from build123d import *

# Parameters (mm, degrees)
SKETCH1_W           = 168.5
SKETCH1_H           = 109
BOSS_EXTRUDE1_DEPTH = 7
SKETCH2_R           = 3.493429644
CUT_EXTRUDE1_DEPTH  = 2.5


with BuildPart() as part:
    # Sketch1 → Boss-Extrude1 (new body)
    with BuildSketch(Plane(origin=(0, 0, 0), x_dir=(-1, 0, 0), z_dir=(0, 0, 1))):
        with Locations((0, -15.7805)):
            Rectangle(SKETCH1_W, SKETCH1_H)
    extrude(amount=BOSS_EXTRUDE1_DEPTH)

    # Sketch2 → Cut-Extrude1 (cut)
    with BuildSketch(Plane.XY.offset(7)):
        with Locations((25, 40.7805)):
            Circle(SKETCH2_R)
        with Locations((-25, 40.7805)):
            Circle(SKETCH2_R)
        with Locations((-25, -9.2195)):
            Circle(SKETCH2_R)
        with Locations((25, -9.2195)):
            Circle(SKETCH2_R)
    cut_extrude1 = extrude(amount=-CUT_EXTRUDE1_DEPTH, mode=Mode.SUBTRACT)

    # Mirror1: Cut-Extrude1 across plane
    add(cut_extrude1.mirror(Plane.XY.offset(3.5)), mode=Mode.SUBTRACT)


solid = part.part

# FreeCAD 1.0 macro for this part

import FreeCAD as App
import Part
import Sketcher

doc = App.newDocument("Part")
body = doc.addObject("PartDesign::Body", "Body")

# Sketch on XY plane
sketch1 = doc.addObject("Sketcher::SketchObject", "Sketch")
body.addObject(sketch1)
sketch1.AttachmentSupport = (doc.XY_Plane, [""])
sketch1.MapMode = "FlatFace"
sketch1.addGeometry([
    Part.LineSegment(App.Vector(84, -39, 0), App.Vector(84, 70, 0)),
    Part.LineSegment(App.Vector(84, 70, 0), App.Vector(-84, 70, 0)),
    Part.LineSegment(App.Vector(-84, 70, 0), App.Vector(-84, -39, 0)),
    Part.LineSegment(App.Vector(-84, -39, 0), App.Vector(84, -39, 0)),
], False)
sketch1.addConstraint([
    Sketcher.Constraint("Coincident", 0, 2, 1, 1),
    Sketcher.Constraint("Coincident", 1, 2, 2, 1),
    Sketcher.Constraint("Coincident", 2, 2, 3, 1),
    Sketcher.Constraint("Coincident", 3, 2, 0, 1),
    Sketcher.Constraint("Vertical", 0),
    Sketcher.Constraint("Horizontal", 1),
    Sketcher.Constraint("Vertical", 2),
    Sketcher.Constraint("Horizontal", 3),
    Sketcher.Constraint("DistanceY", 0, 1, 0, 2, 109.0),
    Sketcher.Constraint("DistanceX", 1, 2, 1, 1, 168.5),
    Sketcher.Constraint("DistanceX", -1, 1, 0, 2, 84.25),
    Sketcher.Constraint("DistanceY", -1, 1, 0, 2, 70.2805),
])
pad1 = doc.addObject("PartDesign::Pad", "Pad")
body.addObject(pad1)
pad1.Profile = sketch1
pad1.Length = 7

# Sketch on XY plane
sketch2 = doc.addObject("Sketcher::SketchObject", "Sketch001")
body.addObject(sketch2)
sketch2.AttachmentSupport = (doc.XY_Plane, [""])
sketch2.MapMode = "FlatFace"
sketch2.AttachmentOffset = App.Placement(App.Vector(0, 0, 7), App.Rotation())
sketch2.addGeometry([
    Part.Circle(App.Vector(25, 40.8, 0), App.Vector(0, 0, 1), 3.5),
    Part.Circle(App.Vector(-25, 40.8, 0), App.Vector(0, 0, 1), 3.5),
    Part.Circle(App.Vector(-25, -9.2, 0), App.Vector(0, 0, 1), 3.5),
    Part.Circle(App.Vector(25, -9.2, 0), App.Vector(0, 0, 1), 3.5),
], False)
sketch2.addConstraint([
    Sketcher.Constraint("Equal", 0, 1),
    Sketcher.Constraint("Equal", 1, 2),
    Sketcher.Constraint("Equal", 2, 3),
    Sketcher.Constraint("Symmetric", 0, 3, 1, 3, -2),
    Sketcher.Constraint("Symmetric", 2, 3, 3, 3, -2),
    Sketcher.Constraint("Vertical", 1, 3, 2, 3),
    Sketcher.Constraint("DistanceX", -1, 1, 0, 3, 25.0),
    Sketcher.Constraint("DistanceY", 2, 3, 1, 3, 50.0),
    Sketcher.Constraint("Diameter", 0, 6.986859),
    Sketcher.Constraint("DistanceY", -1, 1, 0, 3, 40.7805),
])
pocket1 = doc.addObject("PartDesign::Pocket", "Pocket")
body.addObject(pocket1)
pocket1.Profile = sketch2
pocket1.Length = 2.5
doc.recompute()

datumplane = doc.addObject("PartDesign::Plane", "DatumPlane")
body.addObject(datumplane)
datumplane.AttachmentSupport = (doc.XY_Plane, [""])
datumplane.MapMode = "FlatFace"
datumplane.AttachmentOffset = App.Placement(App.Vector(0, 0, 3.5), App.Rotation())
mirrored = doc.addObject("PartDesign::Mirrored", "Mirrored")
body.addObject(mirrored)
mirrored.Originals = [pocket1]
mirrored.MirrorPlane = (datumplane, [""])
body.Tip = mirrored

doc.recompute()
